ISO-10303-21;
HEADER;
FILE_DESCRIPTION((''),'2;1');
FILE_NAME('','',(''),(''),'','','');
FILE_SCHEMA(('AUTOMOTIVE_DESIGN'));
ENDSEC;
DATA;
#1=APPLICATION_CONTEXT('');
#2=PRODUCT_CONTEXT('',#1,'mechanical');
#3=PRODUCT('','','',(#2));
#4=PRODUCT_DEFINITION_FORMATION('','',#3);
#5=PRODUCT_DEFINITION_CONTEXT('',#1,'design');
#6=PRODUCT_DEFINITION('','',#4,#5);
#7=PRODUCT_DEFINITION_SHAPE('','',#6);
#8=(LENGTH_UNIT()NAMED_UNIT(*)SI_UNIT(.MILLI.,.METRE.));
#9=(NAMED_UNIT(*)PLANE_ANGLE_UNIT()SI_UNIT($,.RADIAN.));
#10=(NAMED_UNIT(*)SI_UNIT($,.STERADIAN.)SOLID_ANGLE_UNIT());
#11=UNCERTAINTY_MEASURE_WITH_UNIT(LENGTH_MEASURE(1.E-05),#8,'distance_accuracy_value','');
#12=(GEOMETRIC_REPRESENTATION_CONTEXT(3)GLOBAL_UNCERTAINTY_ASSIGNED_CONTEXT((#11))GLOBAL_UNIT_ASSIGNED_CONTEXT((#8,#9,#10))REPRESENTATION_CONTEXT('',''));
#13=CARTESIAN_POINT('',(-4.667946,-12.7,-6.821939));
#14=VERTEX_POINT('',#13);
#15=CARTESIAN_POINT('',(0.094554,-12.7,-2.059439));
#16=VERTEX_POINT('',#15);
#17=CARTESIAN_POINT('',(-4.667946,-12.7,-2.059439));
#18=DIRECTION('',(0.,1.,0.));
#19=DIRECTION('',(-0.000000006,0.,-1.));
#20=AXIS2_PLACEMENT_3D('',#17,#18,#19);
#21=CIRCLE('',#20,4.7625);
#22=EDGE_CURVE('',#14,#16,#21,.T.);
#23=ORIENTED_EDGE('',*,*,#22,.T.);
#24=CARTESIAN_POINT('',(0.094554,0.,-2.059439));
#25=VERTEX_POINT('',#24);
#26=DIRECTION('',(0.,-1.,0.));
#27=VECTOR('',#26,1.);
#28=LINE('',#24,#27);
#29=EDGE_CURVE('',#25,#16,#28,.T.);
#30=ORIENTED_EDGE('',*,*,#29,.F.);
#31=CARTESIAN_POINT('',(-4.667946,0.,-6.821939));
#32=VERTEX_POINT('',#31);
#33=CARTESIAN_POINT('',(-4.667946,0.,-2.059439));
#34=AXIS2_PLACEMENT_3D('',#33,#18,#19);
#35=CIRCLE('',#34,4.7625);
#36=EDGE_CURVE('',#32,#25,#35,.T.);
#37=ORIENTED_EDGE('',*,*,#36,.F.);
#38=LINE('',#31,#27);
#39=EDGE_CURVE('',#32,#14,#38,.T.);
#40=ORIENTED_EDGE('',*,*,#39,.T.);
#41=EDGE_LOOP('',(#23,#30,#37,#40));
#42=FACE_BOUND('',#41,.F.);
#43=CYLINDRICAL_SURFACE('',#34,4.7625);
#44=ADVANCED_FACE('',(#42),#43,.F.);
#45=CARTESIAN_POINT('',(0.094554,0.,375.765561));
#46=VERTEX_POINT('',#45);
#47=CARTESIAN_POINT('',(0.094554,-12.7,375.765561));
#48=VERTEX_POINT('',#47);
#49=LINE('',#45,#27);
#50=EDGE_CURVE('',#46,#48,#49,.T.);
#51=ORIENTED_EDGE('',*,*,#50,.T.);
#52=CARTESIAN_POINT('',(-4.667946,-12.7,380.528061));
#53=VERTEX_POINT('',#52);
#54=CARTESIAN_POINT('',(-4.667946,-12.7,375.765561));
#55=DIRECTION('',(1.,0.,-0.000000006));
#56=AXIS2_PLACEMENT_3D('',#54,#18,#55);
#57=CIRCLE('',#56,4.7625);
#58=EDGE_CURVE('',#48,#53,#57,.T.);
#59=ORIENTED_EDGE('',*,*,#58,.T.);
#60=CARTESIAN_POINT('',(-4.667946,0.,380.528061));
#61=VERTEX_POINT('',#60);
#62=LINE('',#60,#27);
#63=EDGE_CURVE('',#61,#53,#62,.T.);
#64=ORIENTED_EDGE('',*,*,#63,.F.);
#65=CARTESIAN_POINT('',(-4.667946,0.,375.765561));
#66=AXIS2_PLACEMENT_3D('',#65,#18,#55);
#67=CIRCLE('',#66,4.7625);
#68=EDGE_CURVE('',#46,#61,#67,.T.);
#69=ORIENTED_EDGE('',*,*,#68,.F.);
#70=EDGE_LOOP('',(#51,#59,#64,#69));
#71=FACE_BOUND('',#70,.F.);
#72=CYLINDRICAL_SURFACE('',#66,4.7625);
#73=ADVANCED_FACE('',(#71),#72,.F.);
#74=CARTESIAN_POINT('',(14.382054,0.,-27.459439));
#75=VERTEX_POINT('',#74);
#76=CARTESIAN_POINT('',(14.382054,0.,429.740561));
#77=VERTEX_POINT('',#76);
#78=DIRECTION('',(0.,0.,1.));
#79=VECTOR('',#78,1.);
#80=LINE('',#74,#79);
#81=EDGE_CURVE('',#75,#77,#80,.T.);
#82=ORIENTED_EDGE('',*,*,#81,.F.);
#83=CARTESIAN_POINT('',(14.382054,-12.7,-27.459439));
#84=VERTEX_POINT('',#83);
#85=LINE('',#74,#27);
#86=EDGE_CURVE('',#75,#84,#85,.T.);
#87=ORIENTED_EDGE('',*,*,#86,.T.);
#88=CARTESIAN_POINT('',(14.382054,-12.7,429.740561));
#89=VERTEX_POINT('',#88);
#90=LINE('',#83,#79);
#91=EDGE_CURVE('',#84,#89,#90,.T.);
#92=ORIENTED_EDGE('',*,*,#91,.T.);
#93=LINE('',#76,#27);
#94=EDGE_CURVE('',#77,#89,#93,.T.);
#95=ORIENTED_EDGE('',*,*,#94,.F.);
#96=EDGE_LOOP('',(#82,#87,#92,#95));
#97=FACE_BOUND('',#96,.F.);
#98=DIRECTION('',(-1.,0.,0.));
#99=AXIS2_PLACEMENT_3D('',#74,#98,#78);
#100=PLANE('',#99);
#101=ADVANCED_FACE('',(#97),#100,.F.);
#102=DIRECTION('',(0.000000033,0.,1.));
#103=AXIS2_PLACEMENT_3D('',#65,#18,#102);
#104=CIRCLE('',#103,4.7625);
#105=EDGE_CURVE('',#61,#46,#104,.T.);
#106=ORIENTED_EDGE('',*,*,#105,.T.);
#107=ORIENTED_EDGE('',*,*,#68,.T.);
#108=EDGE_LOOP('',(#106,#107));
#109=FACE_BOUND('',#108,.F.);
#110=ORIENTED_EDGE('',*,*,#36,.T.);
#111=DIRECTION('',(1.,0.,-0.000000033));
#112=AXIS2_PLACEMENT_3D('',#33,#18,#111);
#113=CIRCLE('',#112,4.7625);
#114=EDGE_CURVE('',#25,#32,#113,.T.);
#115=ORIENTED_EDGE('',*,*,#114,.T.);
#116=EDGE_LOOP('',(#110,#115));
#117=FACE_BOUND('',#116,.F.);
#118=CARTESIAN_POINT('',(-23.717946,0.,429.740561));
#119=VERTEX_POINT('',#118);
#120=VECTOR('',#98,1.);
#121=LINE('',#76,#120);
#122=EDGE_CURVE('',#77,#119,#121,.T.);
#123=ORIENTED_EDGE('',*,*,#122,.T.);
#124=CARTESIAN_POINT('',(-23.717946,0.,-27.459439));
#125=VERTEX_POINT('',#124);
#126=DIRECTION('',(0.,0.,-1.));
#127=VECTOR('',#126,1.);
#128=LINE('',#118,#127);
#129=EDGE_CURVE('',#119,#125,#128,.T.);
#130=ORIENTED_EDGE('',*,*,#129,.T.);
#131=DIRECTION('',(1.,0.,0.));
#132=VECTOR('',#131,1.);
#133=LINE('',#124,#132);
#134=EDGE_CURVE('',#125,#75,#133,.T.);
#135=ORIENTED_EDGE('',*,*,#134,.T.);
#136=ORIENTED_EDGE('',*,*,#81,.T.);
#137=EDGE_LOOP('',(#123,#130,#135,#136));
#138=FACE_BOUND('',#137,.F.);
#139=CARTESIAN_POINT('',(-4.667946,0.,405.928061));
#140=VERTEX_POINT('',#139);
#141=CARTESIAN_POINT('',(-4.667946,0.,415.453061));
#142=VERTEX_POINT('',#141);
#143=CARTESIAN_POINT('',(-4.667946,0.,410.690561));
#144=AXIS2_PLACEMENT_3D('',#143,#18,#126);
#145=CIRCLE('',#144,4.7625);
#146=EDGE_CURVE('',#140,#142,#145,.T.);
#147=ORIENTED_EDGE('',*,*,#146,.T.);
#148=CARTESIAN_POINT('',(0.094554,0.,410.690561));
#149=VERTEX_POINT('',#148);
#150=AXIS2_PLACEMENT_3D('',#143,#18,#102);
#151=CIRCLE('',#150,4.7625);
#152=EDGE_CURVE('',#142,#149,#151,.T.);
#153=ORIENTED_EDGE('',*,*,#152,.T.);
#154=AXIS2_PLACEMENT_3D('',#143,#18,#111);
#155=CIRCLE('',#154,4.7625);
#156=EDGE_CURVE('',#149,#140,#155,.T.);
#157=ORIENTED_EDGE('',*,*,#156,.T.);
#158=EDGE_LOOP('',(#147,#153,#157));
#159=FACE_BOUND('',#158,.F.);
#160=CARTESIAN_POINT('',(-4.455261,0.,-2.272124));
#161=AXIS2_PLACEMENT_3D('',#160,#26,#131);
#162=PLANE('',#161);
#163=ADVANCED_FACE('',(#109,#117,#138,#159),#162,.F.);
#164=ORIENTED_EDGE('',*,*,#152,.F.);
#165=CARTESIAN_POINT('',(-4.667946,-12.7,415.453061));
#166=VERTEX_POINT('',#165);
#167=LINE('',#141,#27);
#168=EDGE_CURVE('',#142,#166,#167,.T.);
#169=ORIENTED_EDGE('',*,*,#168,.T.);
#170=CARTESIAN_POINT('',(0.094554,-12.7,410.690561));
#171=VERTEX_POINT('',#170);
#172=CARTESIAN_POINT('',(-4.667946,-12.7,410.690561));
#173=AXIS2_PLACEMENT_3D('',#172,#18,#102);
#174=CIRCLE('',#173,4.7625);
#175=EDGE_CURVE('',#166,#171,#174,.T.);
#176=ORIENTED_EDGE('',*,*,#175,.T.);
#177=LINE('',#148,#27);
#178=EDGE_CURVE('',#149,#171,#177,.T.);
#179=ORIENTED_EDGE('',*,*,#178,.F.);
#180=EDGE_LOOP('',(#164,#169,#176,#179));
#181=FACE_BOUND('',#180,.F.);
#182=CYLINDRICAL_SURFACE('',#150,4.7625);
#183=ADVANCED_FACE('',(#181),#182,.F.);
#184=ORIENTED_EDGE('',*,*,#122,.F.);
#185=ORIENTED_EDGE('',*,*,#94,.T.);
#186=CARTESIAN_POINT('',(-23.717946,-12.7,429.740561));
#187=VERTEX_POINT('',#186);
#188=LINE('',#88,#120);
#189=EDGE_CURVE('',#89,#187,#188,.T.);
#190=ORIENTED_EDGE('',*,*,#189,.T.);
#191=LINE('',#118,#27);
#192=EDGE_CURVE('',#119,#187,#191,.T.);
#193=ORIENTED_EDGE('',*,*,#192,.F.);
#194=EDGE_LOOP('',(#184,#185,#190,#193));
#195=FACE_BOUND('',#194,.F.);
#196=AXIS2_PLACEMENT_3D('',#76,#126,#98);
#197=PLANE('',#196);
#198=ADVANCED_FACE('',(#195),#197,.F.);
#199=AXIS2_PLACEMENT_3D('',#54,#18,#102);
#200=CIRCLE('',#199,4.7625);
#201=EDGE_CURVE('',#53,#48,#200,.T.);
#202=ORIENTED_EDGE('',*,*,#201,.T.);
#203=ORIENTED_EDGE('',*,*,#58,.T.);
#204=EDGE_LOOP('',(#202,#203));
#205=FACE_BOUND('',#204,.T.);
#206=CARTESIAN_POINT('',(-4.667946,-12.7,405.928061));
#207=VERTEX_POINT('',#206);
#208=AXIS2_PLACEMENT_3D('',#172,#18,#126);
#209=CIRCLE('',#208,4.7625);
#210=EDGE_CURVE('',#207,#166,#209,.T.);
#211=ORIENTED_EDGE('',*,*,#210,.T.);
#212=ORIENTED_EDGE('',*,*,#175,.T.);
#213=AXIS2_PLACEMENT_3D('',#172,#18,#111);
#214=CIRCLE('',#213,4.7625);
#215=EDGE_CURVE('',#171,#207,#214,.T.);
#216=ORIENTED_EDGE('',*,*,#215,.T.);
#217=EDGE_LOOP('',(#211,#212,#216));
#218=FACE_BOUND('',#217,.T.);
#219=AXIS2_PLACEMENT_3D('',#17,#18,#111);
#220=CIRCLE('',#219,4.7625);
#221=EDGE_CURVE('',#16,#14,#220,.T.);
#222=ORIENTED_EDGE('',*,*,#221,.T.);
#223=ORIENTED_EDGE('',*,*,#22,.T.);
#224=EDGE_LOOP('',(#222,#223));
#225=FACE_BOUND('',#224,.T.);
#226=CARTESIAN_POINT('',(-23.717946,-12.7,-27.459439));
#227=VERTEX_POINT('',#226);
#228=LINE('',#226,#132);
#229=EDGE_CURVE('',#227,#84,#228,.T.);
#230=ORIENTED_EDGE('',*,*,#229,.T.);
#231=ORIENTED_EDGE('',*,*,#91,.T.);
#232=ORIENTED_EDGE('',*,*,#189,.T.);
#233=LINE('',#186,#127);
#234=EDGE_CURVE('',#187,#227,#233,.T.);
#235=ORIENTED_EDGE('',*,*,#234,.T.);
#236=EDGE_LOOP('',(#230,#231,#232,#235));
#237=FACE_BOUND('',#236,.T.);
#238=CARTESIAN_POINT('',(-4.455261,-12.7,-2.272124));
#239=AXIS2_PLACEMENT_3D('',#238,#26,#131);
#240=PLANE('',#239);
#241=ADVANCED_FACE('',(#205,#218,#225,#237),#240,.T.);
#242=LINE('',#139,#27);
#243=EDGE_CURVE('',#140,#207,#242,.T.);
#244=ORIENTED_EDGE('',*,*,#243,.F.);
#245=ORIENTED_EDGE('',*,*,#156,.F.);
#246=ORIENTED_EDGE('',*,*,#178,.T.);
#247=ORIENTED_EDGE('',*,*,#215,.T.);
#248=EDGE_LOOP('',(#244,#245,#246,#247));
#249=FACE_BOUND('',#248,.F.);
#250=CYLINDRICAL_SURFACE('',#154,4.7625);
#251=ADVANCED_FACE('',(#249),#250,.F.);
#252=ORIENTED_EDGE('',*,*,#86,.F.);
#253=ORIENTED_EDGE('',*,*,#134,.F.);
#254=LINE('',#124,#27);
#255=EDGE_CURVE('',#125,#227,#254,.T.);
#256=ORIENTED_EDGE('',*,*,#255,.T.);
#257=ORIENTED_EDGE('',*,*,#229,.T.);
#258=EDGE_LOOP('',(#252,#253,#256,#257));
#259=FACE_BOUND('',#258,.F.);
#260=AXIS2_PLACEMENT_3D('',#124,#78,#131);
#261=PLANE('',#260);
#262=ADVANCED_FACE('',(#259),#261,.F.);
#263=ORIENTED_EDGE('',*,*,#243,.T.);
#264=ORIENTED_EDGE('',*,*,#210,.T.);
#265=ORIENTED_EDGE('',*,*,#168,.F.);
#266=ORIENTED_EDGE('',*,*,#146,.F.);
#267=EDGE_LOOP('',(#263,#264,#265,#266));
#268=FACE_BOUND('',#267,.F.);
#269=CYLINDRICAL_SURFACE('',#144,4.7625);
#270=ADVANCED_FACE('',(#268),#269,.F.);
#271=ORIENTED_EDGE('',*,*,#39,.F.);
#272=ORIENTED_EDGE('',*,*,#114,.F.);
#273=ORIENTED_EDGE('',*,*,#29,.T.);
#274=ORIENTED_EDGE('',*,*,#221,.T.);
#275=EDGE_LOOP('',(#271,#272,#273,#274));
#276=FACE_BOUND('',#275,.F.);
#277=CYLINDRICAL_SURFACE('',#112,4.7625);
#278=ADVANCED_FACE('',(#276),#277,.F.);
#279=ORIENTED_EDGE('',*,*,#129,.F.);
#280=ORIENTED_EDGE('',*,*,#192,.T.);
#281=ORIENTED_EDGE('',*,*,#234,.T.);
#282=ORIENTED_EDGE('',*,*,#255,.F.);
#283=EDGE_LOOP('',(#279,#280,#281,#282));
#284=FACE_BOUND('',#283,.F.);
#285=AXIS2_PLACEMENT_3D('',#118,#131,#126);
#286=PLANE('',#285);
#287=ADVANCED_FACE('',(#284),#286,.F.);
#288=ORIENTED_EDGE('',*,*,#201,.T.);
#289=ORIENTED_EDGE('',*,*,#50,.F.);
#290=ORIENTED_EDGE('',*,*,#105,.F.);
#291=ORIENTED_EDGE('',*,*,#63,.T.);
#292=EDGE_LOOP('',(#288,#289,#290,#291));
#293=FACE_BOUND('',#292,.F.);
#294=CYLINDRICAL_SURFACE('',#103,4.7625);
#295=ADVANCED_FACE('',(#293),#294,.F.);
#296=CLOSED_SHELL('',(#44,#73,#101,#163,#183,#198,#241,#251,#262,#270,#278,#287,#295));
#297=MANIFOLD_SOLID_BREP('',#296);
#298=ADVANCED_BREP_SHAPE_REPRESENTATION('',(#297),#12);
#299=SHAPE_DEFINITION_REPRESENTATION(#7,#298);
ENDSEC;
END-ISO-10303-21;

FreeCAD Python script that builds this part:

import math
import FreeCAD as App
import Part
import Sketcher
Q = App.Units.Quantity

doc = App.newDocument("Part")
params = doc.addObject("Spreadsheet::Sheet", "Params")
for row, (alias, value) in enumerate([
    ("sketch1_height", "18 in"),
    ("sketch1_width", "1.5 in"),
    ("sketch1_radius", "0.1875 in"),
    ("pad1_length", "0.5 in"),
], start=1):
    params.set(f"A{row}", alias)
    params.set(f"B{row}", "=" + value)
    params.setAlias(f"B{row}", alias)

body = doc.addObject("PartDesign::Body", "Body")

# Sketch on XZ plane
sketch1 = body.newObject("Sketcher::SketchObject", "Sketch")
sketch1.AttachmentSupport = (doc.getObject("XZ_Plane"), [""])
sketch1.MapMode = "FlatFace"
sketch1.addGeometry([
    Part.LineSegment(App.Vector(-23.7, 429.7, 0), App.Vector(-23.7, -27.5, 0)),  # 0
    Part.LineSegment(App.Vector(-23.7, -27.5, 0), App.Vector(14.4, -27.5, 0)),  # 1
    Part.LineSegment(App.Vector(14.4, -27.5, 0), App.Vector(14.4, 429.7, 0)),  # 2
    Part.LineSegment(App.Vector(14.4, 429.7, 0), App.Vector(-23.7, 429.7, 0)),  # 3
    Part.ArcOfCircle(Part.Circle(App.Vector(-4.7, -2.1, 0), App.Vector(0, 0, 1), 4.8), math.radians(0), math.radians(270)),  # 4
    Part.ArcOfCircle(Part.Circle(App.Vector(-4.7, -2.1, 0), App.Vector(0, 0, 1), 4.8), math.radians(-90), math.radians(0)),  # 5
    Part.ArcOfCircle(Part.Circle(App.Vector(-4.7, 410.7, 0), App.Vector(0, 0, 1), 4.8), math.radians(-90), math.radians(0)),  # 6
    Part.ArcOfCircle(Part.Circle(App.Vector(-4.7, 410.7, 0), App.Vector(0, 0, 1), 4.8), math.radians(90), math.radians(270)),  # 7
    Part.ArcOfCircle(Part.Circle(App.Vector(-4.7, 410.7, 0), App.Vector(0, 0, 1), 4.8), math.radians(0), math.radians(90)),  # 8
    Part.ArcOfCircle(Part.Circle(App.Vector(-4.7, 375.8, 0), App.Vector(0, 0, 1), 4.8), math.radians(0), math.radians(90)),  # 9
    Part.ArcOfCircle(Part.Circle(App.Vector(-4.7, 375.8, 0), App.Vector(0, 0, 1), 4.8), math.radians(90), math.radians(360)),  # 10
], False)
sketch1.addConstraint([
    Sketcher.Constraint("Coincident", 0, 2, 1, 1),
    Sketcher.Constraint("Coincident", 1, 2, 2, 1),
    Sketcher.Constraint("Coincident", 2, 2, 3, 1),
    Sketcher.Constraint("Coincident", 3, 2, 0, 1),
    Sketcher.Constraint("Tangent", 4, 1, 5, 2),
    Sketcher.Constraint("Coincident", 5, 1, 4, 2),
    Sketcher.Constraint("Tangent", 6, 1, 7, 2),
    Sketcher.Constraint("Tangent", 7, 1, 8, 2),
    Sketcher.Constraint("Tangent", 8, 1, 6, 2),
    Sketcher.Constraint("Tangent", 9, 1, 10, 2),
    Sketcher.Constraint("Coincident", 10, 1, 9, 2),
    Sketcher.Constraint("Vertical", 0),
    Sketcher.Constraint("Horizontal", 1),
    Sketcher.Constraint("Vertical", 2),
    Sketcher.Constraint("Horizontal", 3),
    Sketcher.Constraint("Equal", 5, 6),
    Sketcher.Constraint("Equal", 8, 9),
    Sketcher.Constraint("Horizontal", 5, 3, 4, 1),
    Sketcher.Constraint("Horizontal", 7, 3, 8, 1),
    Sketcher.Constraint("Horizontal", 10, 3, 9, 1),
    Sketcher.Constraint("Vertical", 5, 3, 6, 3),
    Sketcher.Constraint("Vertical", 8, 3, 9, 3),
    Sketcher.Constraint("Vertical", 10, 3, 5, 1),
    Sketcher.Constraint("Vertical", 5, 1, 6, 1),
    Sketcher.Constraint("Vertical", 6, 1, 7, 1),
    Sketcher.Constraint("Vertical", 7, 1, 10, 1),
    Sketcher.Constraint("DistanceY", 0, 2, 0, 1, Q("18 in")),
    Sketcher.Constraint("DistanceX", 1, 1, 1, 2, Q("1.5 in")),
    Sketcher.Constraint("Radius", 4, Q("0.1875 in")),
    Sketcher.Constraint("DistanceY", 0, 2, 4, 3, Q("1 in")),
    Sketcher.Constraint("DistanceY", 10, 1, 6, 1, Q("1 in")),
    Sketcher.Constraint("DistanceY", 5, 3, 6, 3, Q("16.25 in")),
    Sketcher.Constraint("DistanceX", 0, 2, 4, 3, Q("0.75 in")),
    Sketcher.Constraint("DistanceY", 4, 3, -1, 1, Q("2.059439 mm")),
    Sketcher.Constraint("DistanceX", 4, 3, -1, 1, Q("4.667946 mm")),
])
sketch1.setExpression("Constraints[26]", "Params.sketch1_height")
sketch1.setExpression("Constraints[27]", "Params.sketch1_width")
sketch1.setExpression("Constraints[28]", "Params.sketch1_radius")
pad1 = body.newObject("PartDesign::Pad", "Pad")
pad1.Profile = sketch1
pad1.setExpression("Length", "Params.pad1_length")

doc.recompute()
